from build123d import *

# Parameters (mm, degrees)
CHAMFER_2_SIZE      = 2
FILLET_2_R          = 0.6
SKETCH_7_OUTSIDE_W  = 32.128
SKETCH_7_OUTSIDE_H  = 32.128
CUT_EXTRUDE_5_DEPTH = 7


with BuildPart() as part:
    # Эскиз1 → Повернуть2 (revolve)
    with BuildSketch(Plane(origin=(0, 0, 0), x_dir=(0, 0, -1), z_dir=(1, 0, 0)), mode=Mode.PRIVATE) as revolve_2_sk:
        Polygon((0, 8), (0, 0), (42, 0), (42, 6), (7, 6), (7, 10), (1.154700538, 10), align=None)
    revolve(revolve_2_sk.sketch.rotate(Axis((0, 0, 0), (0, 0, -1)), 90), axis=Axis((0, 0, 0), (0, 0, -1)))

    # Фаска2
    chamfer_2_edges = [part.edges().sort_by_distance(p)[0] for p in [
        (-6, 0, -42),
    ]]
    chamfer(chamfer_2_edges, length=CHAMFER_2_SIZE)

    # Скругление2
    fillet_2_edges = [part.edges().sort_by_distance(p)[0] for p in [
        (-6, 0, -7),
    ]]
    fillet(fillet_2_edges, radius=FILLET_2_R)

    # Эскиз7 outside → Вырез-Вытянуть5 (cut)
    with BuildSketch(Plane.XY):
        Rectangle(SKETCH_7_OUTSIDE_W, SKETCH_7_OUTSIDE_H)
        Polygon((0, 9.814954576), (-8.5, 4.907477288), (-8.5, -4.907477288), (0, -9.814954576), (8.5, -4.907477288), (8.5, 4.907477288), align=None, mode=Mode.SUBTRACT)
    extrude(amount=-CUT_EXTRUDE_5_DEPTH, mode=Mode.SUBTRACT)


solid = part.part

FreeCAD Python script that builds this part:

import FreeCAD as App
import Part
import Sketcher

V = App.Vector
Q = App.Units.Quantity


def edges_at(feature, points):
    """Names of the edges that pass closest to the given points."""
    edges = feature.Shape.Edges
    near = lambda p: min(range(len(edges)), key=lambda i: edges[i].distToShape(Part.Vertex(*p))[0])
    return sorted({f"Edge{near(p) + 1}" for p in points})


def add_polygon(sketch, points):
    """Adds a closed chain of lines whose ends are joined by coincident constraints."""
    first, n = sketch.GeometryCount, len(points)
    for a, b in zip(points, points[1:] + points[:1]):
        sketch.addGeometry(Part.LineSegment(App.Vector(*a, 0), App.Vector(*b, 0)), False)
    for i in range(n):
        sketch.addConstraint(Sketcher.Constraint("Coincident", first + i, 2, first + (i + 1) % n, 1))

doc = App.newDocument("Part")
body = doc.addObject("PartDesign::Body", "Body")

# Sketch on YZ plane
sketch1 = body.newObject("Sketcher::SketchObject", "Sketch")
sketch1.AttachmentSupport = (doc.getObject("YZ_Plane"), [""])
sketch1.MapMode = "FlatFace"
add_polygon(sketch1, [(8, 0), (0, 0), (0, -42), (6, -42), (6, -7), (10, -7), (10, -1.154701)])  # lines 0-6
sketch1.addConstraint(Sketcher.Constraint("Horizontal", 0))
sketch1.addConstraint(Sketcher.Constraint("Vertical", 1))
sketch1.addConstraint(Sketcher.Constraint("Horizontal", 2))
sketch1.addConstraint(Sketcher.Constraint("Vertical", 3))
sketch1.addConstraint(Sketcher.Constraint("Horizontal", 4))
sketch1.addConstraint(Sketcher.Constraint("Vertical", 5))
sketch1.addConstraint(Sketcher.Constraint("Coincident", 0, 2, -1, 1))
sketch1.addConstraint(Sketcher.Constraint("DistanceX", 0, 2, 0, 1, Q("8 mm")))
sketch1.addConstraint(Sketcher.Constraint("DistanceX", 2, 1, 2, 2, Q("6 mm")))
sketch1.addConstraint(Sketcher.Constraint("DistanceX", 4, 1, 4, 2, Q("4 mm")))
sketch1.addConstraint(Sketcher.Constraint("DistanceY", 1, 2, 1, 1, Q("42 mm")))
sketch1.addConstraint(Sketcher.Constraint("DistanceY", 3, 1, 3, 2, Q("35 mm")))
sketch1.addConstraint(Sketcher.Constraint("Angle", 6, Q("150 deg")))
revolution = body.newObject("PartDesign::Revolution", "Revolution")
revolution.Profile = sketch1
revolution.ReferenceAxis = (sketch1, ["V_Axis"])
revolution.Angle = 360
doc.recompute()

chamfer = body.newObject("PartDesign::Chamfer", "Chamfer")
chamfer.Base = (revolution, edges_at(revolution, [(-6, 0, -42)]))
chamfer.Size = 2
doc.recompute()

fillet = body.newObject("PartDesign::Fillet", "Fillet")
fillet.Base = (chamfer, edges_at(chamfer, [(-6, 0, -7)]))
fillet.Radius = 0.6

# Sketch on XY plane
sketch2 = body.newObject("Sketcher::SketchObject", "Sketch001")
sketch2.AttachmentSupport = (doc.getObject("XY_Plane"), [""])
sketch2.MapMode = "FlatFace"
add_polygon(sketch2, [(-16.064, 16.064), (-16.064, -16.064), (16.064, -16.064), (16.064, 16.064)])  # lines 0-3
add_polygon(sketch2, [(-8.5, 4.907477), (0, 9.814955), (8.5, 4.907477), (8.5, -4.907477), (0, -9.814955), (-8.5, -4.907477)])  # lines 4-9
sketch2.addConstraint(Sketcher.Constraint("Vertical", 0))
sketch2.addConstraint(Sketcher.Constraint("Horizontal", 1))
sketch2.addConstraint(Sketcher.Constraint("Vertical", 2))
sketch2.addConstraint(Sketcher.Constraint("Horizontal", 3))
sketch2.addConstraint(Sketcher.Constraint("Vertical", 6))
sketch2.addConstraint(Sketcher.Constraint("Vertical", 9))
sketch2.addConstraint(Sketcher.Constraint("Symmetric", 0, 2, 2, 2, -1, 1))
sketch2.addConstraint(Sketcher.Constraint("Symmetric", 4, 2, 7, 2, -1, 1))
sketch2.addConstraint(Sketcher.Constraint("Symmetric", 5, 2, 8, 2, -1, 1))
sketch2.addConstraint(Sketcher.Constraint("PointOnObject", 4, 2, -2))
sketch2.addConstraint(Sketcher.Constraint("Parallel", 4, 7))
sketch2.addConstraint(Sketcher.Constraint("Horizontal", 6, 2, 8, 2))
sketch2.addConstraint(Sketcher.Constraint("Equal", 3, 0))
sketch2.addConstraint(Sketcher.Constraint("Angle", 4, Q("30 deg")))
sketch2.addConstraint(Sketcher.Constraint("DistanceX", 8, 2, 6, 2, Q("17 mm")))
sketch2.addConstraint(Sketcher.Constraint("DistanceX", 1, 1, 1, 2, Q("32.128 mm")))
sketch2.addConstraint(Sketcher.Constraint("DistanceY", 6, 2, 6, 1, Q("9.814955 mm")))
pocket1 = body.newObject("PartDesign::Pocket", "Pocket")
pocket1.Profile = sketch2
pocket1.Length = 7

doc.recompute()
